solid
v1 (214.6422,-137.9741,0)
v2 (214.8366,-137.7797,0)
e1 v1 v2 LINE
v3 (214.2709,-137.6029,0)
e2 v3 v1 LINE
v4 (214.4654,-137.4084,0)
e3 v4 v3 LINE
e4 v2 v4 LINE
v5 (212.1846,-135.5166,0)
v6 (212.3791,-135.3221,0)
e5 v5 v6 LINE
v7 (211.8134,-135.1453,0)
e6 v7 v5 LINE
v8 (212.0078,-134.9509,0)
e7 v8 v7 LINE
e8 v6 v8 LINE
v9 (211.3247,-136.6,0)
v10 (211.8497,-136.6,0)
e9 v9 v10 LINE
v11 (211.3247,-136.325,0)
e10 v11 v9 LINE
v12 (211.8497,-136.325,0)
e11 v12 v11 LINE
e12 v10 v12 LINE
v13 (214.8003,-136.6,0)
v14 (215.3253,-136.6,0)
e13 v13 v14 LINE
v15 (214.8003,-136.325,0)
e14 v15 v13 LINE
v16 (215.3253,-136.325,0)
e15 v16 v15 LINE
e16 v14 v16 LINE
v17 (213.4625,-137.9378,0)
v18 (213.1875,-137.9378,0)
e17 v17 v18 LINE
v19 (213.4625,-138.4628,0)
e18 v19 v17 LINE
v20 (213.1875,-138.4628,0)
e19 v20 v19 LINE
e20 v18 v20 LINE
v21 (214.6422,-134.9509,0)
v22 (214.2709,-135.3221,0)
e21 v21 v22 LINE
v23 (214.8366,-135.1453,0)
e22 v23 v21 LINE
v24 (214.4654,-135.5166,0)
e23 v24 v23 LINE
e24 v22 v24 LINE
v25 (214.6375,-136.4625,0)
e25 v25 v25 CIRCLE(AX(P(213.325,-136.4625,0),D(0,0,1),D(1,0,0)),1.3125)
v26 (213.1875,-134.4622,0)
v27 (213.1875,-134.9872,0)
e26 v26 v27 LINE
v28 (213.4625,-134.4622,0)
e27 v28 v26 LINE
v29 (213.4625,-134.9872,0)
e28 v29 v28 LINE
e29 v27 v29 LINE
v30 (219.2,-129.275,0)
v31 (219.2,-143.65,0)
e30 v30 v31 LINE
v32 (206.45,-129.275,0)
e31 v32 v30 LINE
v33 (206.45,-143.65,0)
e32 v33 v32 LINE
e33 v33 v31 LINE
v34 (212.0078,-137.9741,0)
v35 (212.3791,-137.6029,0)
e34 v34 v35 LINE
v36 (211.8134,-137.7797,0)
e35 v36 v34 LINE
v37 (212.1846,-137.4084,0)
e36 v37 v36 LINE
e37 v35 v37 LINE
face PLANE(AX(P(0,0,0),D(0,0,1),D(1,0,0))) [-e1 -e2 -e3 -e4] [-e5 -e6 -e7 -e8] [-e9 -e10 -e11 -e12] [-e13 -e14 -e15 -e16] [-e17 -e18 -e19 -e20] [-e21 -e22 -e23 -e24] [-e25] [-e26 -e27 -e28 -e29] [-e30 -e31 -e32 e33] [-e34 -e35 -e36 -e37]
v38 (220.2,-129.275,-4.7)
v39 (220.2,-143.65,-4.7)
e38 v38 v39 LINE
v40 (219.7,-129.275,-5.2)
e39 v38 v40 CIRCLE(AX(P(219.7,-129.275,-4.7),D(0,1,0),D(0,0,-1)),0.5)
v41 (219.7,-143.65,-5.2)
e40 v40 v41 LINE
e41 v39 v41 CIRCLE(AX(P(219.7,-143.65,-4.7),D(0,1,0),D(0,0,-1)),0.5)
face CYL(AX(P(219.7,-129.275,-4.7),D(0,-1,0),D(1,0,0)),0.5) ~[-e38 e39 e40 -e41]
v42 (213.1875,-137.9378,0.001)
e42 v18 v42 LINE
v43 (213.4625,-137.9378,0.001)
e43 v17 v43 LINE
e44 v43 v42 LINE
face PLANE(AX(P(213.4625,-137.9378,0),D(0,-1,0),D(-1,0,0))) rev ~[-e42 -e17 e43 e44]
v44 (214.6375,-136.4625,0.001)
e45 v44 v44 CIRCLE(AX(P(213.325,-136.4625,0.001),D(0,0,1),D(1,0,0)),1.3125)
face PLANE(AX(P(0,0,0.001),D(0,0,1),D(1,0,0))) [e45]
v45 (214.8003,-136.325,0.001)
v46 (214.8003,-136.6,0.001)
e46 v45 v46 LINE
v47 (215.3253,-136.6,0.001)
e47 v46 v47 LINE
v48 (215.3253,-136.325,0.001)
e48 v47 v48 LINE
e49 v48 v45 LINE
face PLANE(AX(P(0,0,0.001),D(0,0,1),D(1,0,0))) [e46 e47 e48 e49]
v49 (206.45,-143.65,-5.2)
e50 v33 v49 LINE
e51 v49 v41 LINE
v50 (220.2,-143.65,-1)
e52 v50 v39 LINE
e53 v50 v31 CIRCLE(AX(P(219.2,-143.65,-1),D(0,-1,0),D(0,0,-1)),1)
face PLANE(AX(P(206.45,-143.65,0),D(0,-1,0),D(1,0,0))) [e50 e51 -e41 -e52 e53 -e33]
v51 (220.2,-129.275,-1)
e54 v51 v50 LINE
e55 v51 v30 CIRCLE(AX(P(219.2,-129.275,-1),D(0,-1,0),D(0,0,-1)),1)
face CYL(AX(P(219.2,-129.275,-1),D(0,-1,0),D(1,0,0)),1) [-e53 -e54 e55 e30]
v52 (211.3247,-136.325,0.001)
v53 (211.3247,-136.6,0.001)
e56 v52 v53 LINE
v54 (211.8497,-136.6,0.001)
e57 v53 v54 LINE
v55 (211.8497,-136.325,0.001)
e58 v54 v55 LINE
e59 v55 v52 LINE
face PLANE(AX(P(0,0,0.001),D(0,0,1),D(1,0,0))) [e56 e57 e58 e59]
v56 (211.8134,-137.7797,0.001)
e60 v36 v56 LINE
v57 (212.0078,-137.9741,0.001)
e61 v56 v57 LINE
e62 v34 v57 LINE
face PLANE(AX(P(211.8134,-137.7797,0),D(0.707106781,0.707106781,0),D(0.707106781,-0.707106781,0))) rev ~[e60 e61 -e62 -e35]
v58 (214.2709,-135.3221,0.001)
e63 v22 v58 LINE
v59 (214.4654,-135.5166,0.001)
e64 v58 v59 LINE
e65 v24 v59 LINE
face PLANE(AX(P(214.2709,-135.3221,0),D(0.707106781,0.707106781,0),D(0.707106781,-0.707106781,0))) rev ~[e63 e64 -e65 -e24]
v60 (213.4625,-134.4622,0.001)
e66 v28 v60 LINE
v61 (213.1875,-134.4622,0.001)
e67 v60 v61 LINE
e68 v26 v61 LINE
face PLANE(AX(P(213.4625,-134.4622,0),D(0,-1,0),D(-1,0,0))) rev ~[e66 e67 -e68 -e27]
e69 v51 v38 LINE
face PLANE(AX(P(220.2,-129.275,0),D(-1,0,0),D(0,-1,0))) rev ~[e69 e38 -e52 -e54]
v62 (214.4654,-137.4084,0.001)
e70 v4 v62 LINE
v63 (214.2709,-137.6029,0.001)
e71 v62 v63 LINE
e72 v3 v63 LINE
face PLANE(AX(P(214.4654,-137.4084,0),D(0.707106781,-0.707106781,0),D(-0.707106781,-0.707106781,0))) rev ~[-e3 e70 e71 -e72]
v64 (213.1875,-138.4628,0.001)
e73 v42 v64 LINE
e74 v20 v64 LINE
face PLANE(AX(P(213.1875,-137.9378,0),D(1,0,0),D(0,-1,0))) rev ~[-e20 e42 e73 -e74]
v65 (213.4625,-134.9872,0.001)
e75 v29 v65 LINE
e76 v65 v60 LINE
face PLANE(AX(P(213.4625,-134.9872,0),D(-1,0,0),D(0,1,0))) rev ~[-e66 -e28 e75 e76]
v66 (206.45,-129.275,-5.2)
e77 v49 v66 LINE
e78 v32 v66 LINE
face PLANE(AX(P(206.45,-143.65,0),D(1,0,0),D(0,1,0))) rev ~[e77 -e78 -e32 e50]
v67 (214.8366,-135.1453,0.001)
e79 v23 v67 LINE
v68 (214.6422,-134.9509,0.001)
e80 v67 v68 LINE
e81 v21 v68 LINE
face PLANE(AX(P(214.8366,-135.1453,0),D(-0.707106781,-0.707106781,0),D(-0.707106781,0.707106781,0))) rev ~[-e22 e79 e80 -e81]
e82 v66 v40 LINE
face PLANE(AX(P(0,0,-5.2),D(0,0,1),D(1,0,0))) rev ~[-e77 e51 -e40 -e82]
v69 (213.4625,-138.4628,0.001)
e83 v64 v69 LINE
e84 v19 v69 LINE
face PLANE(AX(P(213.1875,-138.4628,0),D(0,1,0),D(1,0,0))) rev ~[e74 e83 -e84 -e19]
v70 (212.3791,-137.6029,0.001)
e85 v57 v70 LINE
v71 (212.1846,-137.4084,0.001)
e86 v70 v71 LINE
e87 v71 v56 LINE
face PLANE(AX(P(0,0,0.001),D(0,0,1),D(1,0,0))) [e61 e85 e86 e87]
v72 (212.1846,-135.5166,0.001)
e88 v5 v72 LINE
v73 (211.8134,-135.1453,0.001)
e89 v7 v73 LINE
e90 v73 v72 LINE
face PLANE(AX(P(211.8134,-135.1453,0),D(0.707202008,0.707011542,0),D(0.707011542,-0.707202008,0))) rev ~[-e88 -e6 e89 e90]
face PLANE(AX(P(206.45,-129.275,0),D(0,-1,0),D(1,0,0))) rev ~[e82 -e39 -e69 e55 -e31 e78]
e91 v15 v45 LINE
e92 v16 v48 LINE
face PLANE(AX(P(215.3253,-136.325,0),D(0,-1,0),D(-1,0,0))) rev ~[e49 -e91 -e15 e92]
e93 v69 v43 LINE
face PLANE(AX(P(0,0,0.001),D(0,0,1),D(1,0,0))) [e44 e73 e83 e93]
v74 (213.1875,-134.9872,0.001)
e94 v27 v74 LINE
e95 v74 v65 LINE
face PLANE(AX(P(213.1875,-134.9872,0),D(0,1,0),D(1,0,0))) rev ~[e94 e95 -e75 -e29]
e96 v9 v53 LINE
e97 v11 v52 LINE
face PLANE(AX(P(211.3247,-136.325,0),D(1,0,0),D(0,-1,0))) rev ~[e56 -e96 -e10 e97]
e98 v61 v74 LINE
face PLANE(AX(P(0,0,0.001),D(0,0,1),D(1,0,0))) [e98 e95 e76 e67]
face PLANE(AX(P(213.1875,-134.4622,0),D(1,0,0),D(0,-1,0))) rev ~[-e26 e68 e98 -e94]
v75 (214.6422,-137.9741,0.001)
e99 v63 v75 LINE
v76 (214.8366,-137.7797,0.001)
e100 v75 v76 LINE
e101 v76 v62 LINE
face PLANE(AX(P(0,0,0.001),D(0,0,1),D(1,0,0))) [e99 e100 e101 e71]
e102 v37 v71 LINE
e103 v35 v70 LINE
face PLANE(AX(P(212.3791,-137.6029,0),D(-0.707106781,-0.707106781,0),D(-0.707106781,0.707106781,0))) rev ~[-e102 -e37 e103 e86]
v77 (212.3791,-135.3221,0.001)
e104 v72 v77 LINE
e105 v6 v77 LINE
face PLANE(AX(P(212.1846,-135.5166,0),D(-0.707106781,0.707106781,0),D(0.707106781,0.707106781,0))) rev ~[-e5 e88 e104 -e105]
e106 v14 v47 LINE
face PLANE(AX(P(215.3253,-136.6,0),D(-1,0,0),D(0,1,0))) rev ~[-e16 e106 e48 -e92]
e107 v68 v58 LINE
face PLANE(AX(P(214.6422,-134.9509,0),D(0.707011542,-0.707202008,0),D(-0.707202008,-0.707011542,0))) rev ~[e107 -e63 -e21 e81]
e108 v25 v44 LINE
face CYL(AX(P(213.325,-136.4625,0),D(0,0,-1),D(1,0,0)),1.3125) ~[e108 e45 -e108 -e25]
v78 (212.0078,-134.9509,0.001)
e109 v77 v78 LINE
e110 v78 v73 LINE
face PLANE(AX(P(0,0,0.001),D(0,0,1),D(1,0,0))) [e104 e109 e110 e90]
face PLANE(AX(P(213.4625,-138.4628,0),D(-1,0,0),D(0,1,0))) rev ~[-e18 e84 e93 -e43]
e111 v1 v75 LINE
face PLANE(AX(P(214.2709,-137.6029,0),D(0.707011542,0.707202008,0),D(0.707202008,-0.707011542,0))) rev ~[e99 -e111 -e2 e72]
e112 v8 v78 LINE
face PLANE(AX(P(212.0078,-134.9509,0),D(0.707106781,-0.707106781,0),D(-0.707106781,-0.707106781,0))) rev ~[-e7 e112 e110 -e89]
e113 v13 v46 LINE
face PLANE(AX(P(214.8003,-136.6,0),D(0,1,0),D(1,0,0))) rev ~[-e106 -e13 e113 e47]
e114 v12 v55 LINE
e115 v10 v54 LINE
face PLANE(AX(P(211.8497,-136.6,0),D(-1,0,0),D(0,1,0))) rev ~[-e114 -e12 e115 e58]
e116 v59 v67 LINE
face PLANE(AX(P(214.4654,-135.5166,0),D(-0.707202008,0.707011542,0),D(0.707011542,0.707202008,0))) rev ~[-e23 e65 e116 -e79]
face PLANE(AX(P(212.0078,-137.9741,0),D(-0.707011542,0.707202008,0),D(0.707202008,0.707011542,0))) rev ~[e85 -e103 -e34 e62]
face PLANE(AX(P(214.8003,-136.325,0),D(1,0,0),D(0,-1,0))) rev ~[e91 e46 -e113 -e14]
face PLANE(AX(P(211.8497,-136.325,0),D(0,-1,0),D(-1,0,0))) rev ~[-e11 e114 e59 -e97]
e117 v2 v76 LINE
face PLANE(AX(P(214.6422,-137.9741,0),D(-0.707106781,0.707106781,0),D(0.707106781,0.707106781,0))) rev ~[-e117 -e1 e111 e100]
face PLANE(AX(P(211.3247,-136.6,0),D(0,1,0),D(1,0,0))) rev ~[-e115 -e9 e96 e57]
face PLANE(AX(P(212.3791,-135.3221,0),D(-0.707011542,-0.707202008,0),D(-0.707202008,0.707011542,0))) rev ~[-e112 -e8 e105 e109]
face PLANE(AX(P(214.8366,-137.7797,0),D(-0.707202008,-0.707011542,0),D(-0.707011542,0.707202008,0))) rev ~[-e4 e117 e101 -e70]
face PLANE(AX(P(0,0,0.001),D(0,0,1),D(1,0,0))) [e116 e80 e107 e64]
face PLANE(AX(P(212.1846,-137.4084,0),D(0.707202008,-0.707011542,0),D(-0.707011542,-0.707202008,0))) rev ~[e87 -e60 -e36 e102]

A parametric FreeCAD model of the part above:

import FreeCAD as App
import Part
import Sketcher
Q = App.Units.Quantity


def edges_at(feature, points):
    """Names of the edges that pass closest to the given points."""
    edges = feature.Shape.Edges
    near = lambda p: min(range(len(edges)), key=lambda i: edges[i].distToShape(Part.Vertex(*p))[0])
    return sorted({f"Edge{near(p) + 1}" for p in points})


def add_polygon(sketch, points):
    """Adds a closed chain of lines whose ends are joined by coincident constraints."""
    first, n = sketch.GeometryCount, len(points)
    for a, b in zip(points, points[1:] + points[:1]):
        sketch.addGeometry(Part.LineSegment(App.Vector(*a, 0), App.Vector(*b, 0)), False)
    for i in range(n):
        sketch.addConstraint(Sketcher.Constraint("Coincident", first + i, 2, first + (i + 1) % n, 1))

doc = App.newDocument("Part")
params = doc.addObject("Spreadsheet::Sheet", "Params")
for row, (alias, value) in enumerate([
    ("sketch1_width", "13.75 mm"),
    ("pad1_length", "5.2 mm"),
    ("fillet_radius", "0.5 mm"),
    ("fillet2_radius", "1 mm"),
    ("pad2_length", "0.001 mm"),
], start=1):
    params.set(f"A{row}", alias)
    params.set(f"B{row}", "=" + value)
    params.setAlias(f"B{row}", alias)

body = doc.addObject("PartDesign::Body", "Body")

sketch1 = body.newObject("Sketcher::SketchObject", "Sketch")
sketch1.AttachmentSupport = (doc.getObject("XY_Plane"), [""])
sketch1.MapMode = "FlatFace"
add_polygon(sketch1, [(206, -129), (206, -144), (220, -144), (220, -129)])
sketch1.addConstraint([
    Sketcher.Constraint("Vertical", 0),
    Sketcher.Constraint("Horizontal", 1),
    Sketcher.Constraint("Vertical", 2),
    Sketcher.Constraint("Horizontal", 3),
    Sketcher.Constraint("DistanceX", 1, 1, 1, 2, Q("13.75 mm")),
    Sketcher.Constraint("DistanceX", -1, 1, 1, 2, Q("220.2 mm")),
    Sketcher.Constraint("DistanceY", 0, 2, 0, 1, Q("14.375 mm")),
    Sketcher.Constraint("DistanceY", 0, 2, -1, 1, Q("143.65 mm")),
])
sketch1.setExpression("Constraints[8]", "Params.sketch1_width")
pad1 = body.newObject("PartDesign::Pad", "Pad")
pad1.Profile = sketch1
pad1.setExpression("Length", "Params.pad1_length")
pad1.Reversed = True
doc.recompute()

fillet = body.newObject("PartDesign::Fillet", "Fillet")
fillet.Base = (pad1, edges_at(pad1, [(220.2, -136.463, -5.2)]))
fillet.setExpression("Radius", "Params.fillet_radius")
doc.recompute()

fillet2 = body.newObject("PartDesign::Fillet", "Fillet001")
fillet2.Base = (fillet, edges_at(fillet, [(220.2, -136.463, 0)]))
fillet2.setExpression("Radius", "Params.fillet2_radius")

sketch2 = body.newObject("Sketcher::SketchObject", "Sketch001")
sketch2.AttachmentSupport = (doc.getObject("XY_Plane"), [""])
sketch2.MapMode = "FlatFace"
sketch2.addGeometry(Part.Circle(App.Vector(213.32, -136.46, 0), App.Vector(0, 0, 1), 1.31), False)
add_polygon(sketch2, [(213.46, -134.99), (213.46, -134.46), (213.19, -134.46), (213.19, -134.99)])
add_polygon(sketch2, [(212.38, -135.32), (212.01, -134.95), (211.81, -135.15), (212.18, -135.52)])
add_polygon(sketch2, [(211.85, -136.32), (211.32, -136.32), (211.32, -136.6), (211.85, -136.6)])
add_polygon(sketch2, [(212.18, -137.41), (211.81, -137.78), (212.01, -137.97), (212.38, -137.6)])
add_polygon(sketch2, [(213.19, -137.94), (213.19, -138.46), (213.46, -138.46), (213.46, -137.94)])
add_polygon(sketch2, [(214.27, -137.6), (214.64, -137.97), (214.84, -137.78), (214.47, -137.41)])
add_polygon(sketch2, [(214.8, -136.6), (215.33, -136.6), (215.33, -136.32), (214.8, -136.32)])
add_polygon(sketch2, [(214.47, -135.52), (214.84, -135.15), (214.64, -134.95), (214.27, -135.32)])
sketch2.addConstraint([
    Sketcher.Constraint("Vertical", 1),
    Sketcher.Constraint("Horizontal", 2),
    Sketcher.Constraint("Vertical", 3),
    Sketcher.Constraint("Horizontal", 4),
    Sketcher.Constraint("Horizontal", 9),
    Sketcher.Constraint("Vertical", 10),
    Sketcher.Constraint("Horizontal", 11),
    Sketcher.Constraint("Vertical", 12),
    Sketcher.Constraint("Vertical", 17),
    Sketcher.Constraint("Horizontal", 18),
    Sketcher.Constraint("Vertical", 19),
    Sketcher.Constraint("Horizontal", 20),
    Sketcher.Constraint("Horizontal", 25),
    Sketcher.Constraint("Vertical", 26),
    Sketcher.Constraint("Horizontal", 27),
    Sketcher.Constraint("Vertical", 28),
    Sketcher.Constraint("Perpendicular", 5, 6),
    Sketcher.Constraint("Perpendicular", 6, 7),
    Sketcher.Constraint("Perpendicular", 7, 8),
    Sketcher.Constraint("Parallel", 8, 13),
    Sketcher.Constraint("Perpendicular", 13, 14),
    Sketcher.Constraint("Perpendicular", 14, 15),
    Sketcher.Constraint("Perpendicular", 15, 16),
    Sketcher.Constraint("Parallel", 16, 21),
    Sketcher.Constraint("Perpendicular", 21, 22),
    Sketcher.Constraint("Perpendicular", 22, 23),
    Sketcher.Constraint("Perpendicular", 23, 24),
    Sketcher.Constraint("Parallel", 24, 29),
    Sketcher.Constraint("Perpendicular", 29, 30),
    Sketcher.Constraint("Perpendicular", 30, 31),
    Sketcher.Constraint("Perpendicular", 31, 32),
    Sketcher.Constraint("Horizontal", 14, 2, 21, 2),
    Sketcher.Constraint("Horizontal", 13, 2, 22, 2),
    Sketcher.Constraint("Horizontal", 16, 2, 23, 2),
    Sketcher.Constraint("Horizontal", 11, 2, 25, 2),
    Sketcher.Constraint("Horizontal", 12, 2, 26, 2),
    Sketcher.Constraint("Horizontal", 6, 2, 29, 2),
    Sketcher.Constraint("Horizontal", 5, 2, 30, 2),
    Sketcher.Constraint("Horizontal", 8, 2, 31, 2),
    Sketcher.Constraint("Vertical", 6, 2, 13, 2),
    Sketcher.Constraint("Vertical", 5, 2, 14, 2),
    Sketcher.Constraint("Vertical", 8, 2, 15, 2),
    Sketcher.Constraint("Vertical", 3, 2, 17, 2),
    Sketcher.Constraint("Vertical", 4, 2, 18, 2),
    Sketcher.Constraint("Vertical", 22, 2, 29, 2),
    Sketcher.Constraint("Vertical", 21, 2, 30, 2),
    Sketcher.Constraint("Equal", 11, 25),
    Sketcher.Constraint("Equal", 27, 1),
    Sketcher.Constraint("Equal", 20, 10),
    Sketcher.Constraint("Equal", 3, 17),
    Sketcher.Constraint("Diameter", 0, Q("2.625 mm")),
    Sketcher.Constraint("DistanceX", 2, 2, 2, 1, Q("0.275 mm")),
    Sketcher.Constraint("Distance", 6, Q("0.275 mm")),
    Sketcher.Constraint("DistanceY", 10, 2, -1, 1, Q("136.6 mm")),
    Sketcher.Constraint("DistanceX", 9, 2, 9, 1, Q("0.525 mm")),
    Sketcher.Constraint("DistanceX", 9, 2, 7, 2, Q("0.86 mm")),
    Sketcher.Constraint("DistanceY", 17, 2, 15, 2, Q("0.86 mm")),
    Sketcher.Constraint("DistanceX", 23, 2, 25, 2, Q("0.86 mm")),
    Sketcher.Constraint("Distance", 5, Q("0.525 mm")),
    Sketcher.Constraint("DistanceX", -1, 1, 0, 3, Q("213.325 mm")),
    Sketcher.Constraint("DistanceY", 5, 2, -1, 1, Q("134.951 mm")),
    Sketcher.Constraint("DistanceX", -1, 1, 8, 2, Q("212.379 mm")),
    Sketcher.Constraint("DistanceY", 14, 2, -1, 1, Q("137.974 mm")),
    Sketcher.Constraint("DistanceX", -1, 1, 24, 2, Q("214.271 mm")),
    Sketcher.Constraint("DistanceX", 6, 2, 3, 2, Q("1.374 mm")),
    Sketcher.Constraint("DistanceY", 6, 2, 3, 2, Q("0.158 mm")),
    Sketcher.Constraint("DistanceY", 0, 3, -1, 1, Q("136.4625 mm")),
])
pad2 = body.newObject("PartDesign::Pad", "Pad001")
pad2.Profile = sketch2
pad2.setExpression("Length", "Params.pad2_length")

doc.recompute()
